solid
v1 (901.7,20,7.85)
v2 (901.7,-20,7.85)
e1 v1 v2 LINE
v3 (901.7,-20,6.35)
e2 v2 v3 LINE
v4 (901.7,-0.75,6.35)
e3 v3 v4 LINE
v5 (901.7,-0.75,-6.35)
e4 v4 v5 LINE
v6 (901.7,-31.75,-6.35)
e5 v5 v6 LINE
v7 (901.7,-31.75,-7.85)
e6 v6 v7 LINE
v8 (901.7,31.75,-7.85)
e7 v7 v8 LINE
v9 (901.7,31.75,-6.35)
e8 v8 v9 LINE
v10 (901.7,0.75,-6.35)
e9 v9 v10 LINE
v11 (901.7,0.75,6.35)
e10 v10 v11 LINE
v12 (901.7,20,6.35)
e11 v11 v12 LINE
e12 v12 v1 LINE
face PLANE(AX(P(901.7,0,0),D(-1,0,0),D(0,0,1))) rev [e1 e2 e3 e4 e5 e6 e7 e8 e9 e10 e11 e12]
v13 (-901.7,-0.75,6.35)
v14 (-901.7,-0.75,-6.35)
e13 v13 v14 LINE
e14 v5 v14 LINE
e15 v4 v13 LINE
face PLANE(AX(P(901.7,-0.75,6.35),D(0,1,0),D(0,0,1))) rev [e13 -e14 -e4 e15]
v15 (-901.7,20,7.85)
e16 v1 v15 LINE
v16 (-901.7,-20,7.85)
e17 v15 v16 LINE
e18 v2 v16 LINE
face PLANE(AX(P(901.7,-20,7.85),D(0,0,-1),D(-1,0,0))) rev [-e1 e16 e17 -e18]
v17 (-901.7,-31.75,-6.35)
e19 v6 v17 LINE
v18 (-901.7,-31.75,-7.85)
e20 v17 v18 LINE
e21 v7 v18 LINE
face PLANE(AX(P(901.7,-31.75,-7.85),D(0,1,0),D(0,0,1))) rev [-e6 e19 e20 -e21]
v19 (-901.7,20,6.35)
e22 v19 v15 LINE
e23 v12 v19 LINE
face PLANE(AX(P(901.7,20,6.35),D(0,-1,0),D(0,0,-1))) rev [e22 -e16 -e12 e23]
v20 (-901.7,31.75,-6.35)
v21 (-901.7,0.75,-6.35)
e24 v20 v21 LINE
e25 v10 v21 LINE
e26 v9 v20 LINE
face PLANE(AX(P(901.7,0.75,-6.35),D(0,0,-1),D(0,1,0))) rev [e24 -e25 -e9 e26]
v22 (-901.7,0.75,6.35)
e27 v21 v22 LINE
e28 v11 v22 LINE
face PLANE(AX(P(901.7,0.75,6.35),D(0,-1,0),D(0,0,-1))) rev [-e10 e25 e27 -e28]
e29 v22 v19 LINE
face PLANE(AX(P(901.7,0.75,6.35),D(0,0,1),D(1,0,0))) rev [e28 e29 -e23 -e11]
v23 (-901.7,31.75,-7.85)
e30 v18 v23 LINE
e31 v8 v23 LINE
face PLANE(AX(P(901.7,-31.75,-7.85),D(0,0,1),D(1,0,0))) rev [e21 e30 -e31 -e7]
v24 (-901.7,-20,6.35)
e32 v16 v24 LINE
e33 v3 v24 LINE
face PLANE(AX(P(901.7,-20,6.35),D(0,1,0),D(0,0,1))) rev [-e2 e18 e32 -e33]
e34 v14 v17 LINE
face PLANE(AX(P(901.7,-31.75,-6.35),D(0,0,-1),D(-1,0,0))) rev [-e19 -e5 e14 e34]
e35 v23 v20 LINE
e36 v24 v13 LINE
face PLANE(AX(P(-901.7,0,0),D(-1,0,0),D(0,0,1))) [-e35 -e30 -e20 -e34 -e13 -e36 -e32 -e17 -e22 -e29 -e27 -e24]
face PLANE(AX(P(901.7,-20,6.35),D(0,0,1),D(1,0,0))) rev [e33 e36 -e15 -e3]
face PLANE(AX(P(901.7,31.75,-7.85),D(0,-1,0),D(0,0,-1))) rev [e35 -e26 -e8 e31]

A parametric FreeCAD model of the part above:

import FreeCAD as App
import Part
import Sketcher
Q = App.Units.Quantity


def add_polygon(sketch, points):
    """Adds a closed chain of lines whose ends are joined by coincident constraints."""
    first, n = sketch.GeometryCount, len(points)
    for a, b in zip(points, points[1:] + points[:1]):
        sketch.addGeometry(Part.LineSegment(App.Vector(*a, 0), App.Vector(*b, 0)), False)
    for i in range(n):
        sketch.addConstraint(Sketcher.Constraint("Coincident", first + i, 2, first + (i + 1) % n, 1))

doc = App.newDocument("Part")
body = doc.addObject("PartDesign::Body", "Body")

sketch1 = doc.addObject("Sketcher::SketchObject", "Sketch")
body.addObject(sketch1)
sketch1.AttachmentSupport = (doc.YZ_Plane, [""])
sketch1.MapMode = "FlatFace"
add_polygon(sketch1, [(-0.75, 6.35), (-0.75, -6.35), (-31.75, -6.35), (-31.75, -7.85), (31.75, -7.85), (31.75, -6.35), (0.75, -6.35), (0.75, 6.35), (20, 6.35), (20, 7.85), (-20, 7.85), (-20, 6.35)])
sketch1.addConstraint([
    Sketcher.Constraint("Vertical", 0),
    Sketcher.Constraint("Horizontal", 1),
    Sketcher.Constraint("Vertical", 2),
    Sketcher.Constraint("Horizontal", 3),
    Sketcher.Constraint("Vertical", 4),
    Sketcher.Constraint("Horizontal", 5),
    Sketcher.Constraint("Vertical", 6),
    Sketcher.Constraint("Horizontal", 7),
    Sketcher.Constraint("Vertical", 8),
    Sketcher.Constraint("Horizontal", 9),
    Sketcher.Constraint("Vertical", 10),
    Sketcher.Constraint("Horizontal", 11),
    Sketcher.Constraint("Symmetric", 0, 2, 6, 2, -1, 1),
    Sketcher.Constraint("Symmetric", 1, 2, 4, 2, -2),
    Sketcher.Constraint("Symmetric", 7, 2, 10, 2, -2),
    Sketcher.Constraint("Equal", 4, 8),
    Sketcher.Constraint("DistanceX", 1, 2, 1, 1, Q("31 mm")),
    Sketcher.Constraint("DistanceX", 9, 2, 9, 1, Q("40 mm")),
    Sketcher.Constraint("DistanceX", 3, 1, 3, 2, Q("63.5 mm")),
    Sketcher.Constraint("DistanceY", 0, 2, 0, 1, Q("12.7 mm")),
    Sketcher.Constraint("DistanceY", 2, 2, 2, 1, Q("1.5 mm")),
])
pad1 = doc.addObject("PartDesign::Pad", "Pad")
body.addObject(pad1)
pad1.Profile = sketch1
pad1.Length = 1803.4
pad1.Midplane = True

doc.recompute()
